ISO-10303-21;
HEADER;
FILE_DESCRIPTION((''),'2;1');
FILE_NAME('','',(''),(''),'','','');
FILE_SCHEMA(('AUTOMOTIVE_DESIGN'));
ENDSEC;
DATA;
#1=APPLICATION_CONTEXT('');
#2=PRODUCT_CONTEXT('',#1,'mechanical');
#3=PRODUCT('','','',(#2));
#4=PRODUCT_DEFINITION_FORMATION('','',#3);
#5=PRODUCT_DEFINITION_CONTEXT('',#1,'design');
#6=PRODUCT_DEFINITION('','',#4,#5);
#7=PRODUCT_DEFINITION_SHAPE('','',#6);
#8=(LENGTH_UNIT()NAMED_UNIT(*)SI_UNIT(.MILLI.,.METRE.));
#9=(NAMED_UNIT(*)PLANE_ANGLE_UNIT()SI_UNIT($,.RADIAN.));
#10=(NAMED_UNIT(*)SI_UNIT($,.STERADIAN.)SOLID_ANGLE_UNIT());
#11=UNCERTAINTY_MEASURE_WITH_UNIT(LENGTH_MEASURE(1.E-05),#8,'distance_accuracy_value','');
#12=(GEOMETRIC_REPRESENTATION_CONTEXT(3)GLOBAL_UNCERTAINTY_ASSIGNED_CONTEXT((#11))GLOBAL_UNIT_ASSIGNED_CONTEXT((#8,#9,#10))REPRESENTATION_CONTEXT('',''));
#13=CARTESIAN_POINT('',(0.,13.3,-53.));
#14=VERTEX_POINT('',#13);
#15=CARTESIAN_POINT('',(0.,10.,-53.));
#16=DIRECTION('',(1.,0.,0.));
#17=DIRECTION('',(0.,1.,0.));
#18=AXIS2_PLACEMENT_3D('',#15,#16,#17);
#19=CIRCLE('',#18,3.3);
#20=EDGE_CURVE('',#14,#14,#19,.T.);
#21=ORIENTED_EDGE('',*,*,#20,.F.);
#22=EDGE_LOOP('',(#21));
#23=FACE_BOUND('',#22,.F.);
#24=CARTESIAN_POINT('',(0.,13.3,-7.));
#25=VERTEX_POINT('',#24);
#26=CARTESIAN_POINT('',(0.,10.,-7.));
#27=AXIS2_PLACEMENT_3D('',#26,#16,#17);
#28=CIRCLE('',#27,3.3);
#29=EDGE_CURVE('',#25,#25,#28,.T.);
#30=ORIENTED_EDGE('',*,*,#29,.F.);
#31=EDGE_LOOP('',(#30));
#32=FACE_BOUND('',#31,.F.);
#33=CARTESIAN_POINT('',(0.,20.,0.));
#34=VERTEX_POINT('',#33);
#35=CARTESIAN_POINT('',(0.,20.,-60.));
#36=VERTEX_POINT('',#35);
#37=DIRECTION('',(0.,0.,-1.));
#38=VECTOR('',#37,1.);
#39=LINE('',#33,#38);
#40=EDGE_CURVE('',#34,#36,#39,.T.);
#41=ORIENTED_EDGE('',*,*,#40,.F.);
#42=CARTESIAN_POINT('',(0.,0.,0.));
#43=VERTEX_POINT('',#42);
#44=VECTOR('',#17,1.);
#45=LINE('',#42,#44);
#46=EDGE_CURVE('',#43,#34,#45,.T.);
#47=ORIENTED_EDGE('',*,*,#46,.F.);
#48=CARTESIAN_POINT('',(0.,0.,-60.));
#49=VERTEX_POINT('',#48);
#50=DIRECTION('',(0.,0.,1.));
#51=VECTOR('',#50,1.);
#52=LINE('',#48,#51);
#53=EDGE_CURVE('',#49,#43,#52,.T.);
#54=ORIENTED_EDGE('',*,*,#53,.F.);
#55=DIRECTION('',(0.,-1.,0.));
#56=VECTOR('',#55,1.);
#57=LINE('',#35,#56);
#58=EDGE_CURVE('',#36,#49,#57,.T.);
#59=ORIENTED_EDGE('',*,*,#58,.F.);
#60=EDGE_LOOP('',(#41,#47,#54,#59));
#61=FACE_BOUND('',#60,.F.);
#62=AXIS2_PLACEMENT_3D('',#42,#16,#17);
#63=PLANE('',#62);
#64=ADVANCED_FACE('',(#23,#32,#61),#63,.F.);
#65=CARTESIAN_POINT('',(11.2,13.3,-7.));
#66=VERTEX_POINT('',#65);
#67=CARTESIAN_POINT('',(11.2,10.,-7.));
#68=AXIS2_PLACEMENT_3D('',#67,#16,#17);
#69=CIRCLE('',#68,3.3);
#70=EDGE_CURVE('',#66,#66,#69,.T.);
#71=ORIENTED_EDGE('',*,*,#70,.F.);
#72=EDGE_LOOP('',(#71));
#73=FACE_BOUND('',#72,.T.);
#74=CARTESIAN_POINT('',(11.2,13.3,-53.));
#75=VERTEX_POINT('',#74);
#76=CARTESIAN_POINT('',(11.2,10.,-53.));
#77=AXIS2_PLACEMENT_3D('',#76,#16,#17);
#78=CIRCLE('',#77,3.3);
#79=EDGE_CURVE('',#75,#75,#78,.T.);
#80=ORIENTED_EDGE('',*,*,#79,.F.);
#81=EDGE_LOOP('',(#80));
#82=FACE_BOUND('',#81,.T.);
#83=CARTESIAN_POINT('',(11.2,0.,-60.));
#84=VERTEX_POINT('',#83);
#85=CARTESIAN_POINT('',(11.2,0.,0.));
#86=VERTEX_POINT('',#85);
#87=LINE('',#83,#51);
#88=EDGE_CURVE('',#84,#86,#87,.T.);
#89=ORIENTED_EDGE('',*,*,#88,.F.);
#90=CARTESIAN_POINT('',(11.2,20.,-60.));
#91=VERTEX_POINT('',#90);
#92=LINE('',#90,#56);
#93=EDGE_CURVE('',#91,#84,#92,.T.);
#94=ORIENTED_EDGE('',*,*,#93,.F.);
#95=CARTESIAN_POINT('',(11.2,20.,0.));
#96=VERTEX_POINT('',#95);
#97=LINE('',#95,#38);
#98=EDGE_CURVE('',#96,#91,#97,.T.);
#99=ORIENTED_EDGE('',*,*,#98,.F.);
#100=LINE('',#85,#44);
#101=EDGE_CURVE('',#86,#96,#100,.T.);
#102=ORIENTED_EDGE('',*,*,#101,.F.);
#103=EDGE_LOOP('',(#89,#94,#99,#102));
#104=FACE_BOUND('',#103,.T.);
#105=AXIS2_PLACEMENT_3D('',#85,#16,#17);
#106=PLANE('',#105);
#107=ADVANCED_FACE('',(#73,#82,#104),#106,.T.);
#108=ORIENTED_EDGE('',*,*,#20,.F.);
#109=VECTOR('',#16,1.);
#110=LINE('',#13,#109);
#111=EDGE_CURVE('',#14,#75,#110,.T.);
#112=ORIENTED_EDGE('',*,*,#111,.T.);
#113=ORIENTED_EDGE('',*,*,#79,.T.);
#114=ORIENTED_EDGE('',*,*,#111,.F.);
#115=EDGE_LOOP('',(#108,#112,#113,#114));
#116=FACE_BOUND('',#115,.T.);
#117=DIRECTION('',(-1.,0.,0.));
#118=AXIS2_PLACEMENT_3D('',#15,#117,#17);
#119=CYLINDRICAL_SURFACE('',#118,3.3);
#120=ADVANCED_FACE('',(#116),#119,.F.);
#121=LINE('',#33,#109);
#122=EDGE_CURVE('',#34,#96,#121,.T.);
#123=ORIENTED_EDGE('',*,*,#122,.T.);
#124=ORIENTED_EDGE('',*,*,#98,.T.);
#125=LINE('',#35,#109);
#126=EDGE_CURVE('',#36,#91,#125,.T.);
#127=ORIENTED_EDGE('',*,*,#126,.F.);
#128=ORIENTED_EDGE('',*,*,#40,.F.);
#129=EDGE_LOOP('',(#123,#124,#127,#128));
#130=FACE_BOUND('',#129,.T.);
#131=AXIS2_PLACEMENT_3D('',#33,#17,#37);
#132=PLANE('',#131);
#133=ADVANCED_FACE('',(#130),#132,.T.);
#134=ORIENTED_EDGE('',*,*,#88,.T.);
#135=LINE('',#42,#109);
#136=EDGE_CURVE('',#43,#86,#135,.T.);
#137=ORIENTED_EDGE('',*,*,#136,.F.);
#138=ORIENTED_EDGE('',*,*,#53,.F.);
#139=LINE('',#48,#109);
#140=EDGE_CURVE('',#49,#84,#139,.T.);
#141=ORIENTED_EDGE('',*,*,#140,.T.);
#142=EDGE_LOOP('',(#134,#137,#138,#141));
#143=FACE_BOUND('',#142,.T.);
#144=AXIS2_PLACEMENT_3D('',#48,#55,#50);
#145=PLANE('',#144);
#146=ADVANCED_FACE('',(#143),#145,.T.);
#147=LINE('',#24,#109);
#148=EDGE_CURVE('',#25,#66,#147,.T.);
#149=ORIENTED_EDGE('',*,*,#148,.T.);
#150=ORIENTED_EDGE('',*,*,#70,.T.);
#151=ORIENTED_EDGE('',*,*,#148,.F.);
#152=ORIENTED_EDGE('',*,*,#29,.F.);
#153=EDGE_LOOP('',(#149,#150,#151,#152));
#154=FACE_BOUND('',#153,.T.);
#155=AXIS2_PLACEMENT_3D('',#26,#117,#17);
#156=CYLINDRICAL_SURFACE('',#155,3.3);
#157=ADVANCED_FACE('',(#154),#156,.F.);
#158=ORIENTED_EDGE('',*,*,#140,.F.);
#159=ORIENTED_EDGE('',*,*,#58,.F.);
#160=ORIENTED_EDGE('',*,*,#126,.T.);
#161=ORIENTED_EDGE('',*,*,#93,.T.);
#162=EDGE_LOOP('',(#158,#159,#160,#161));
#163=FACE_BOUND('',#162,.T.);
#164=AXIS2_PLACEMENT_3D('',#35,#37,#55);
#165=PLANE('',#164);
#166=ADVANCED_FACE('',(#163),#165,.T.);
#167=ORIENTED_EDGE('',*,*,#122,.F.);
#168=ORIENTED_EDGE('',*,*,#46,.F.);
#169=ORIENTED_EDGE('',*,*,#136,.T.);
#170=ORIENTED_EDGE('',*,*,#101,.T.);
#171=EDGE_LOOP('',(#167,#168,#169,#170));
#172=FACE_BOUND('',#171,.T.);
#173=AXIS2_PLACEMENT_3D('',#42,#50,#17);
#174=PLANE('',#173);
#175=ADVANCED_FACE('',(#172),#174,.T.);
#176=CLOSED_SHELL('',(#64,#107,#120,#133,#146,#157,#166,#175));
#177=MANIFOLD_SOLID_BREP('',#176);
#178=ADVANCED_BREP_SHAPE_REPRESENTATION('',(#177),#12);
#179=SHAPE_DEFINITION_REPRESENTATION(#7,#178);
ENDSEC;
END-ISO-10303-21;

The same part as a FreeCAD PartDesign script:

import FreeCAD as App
import Part
import Sketcher
from FreeCAD import Vector


def add_polygon(sketch, points):
    """Adds a closed chain of lines whose ends are joined by coincident constraints."""
    first, n = sketch.GeometryCount, len(points)
    for a, b in zip(points, points[1:] + points[:1]):
        sketch.addGeometry(Part.LineSegment(App.Vector(*a, 0), App.Vector(*b, 0)), False)
    for i in range(n):
        sketch.addConstraint(Sketcher.Constraint("Coincident", first + i, 2, first + (i + 1) % n, 1))

doc = App.newDocument("Part")
body = doc.addObject("PartDesign::Body", "Body")

sketch1 = doc.addObject("Sketcher::SketchObject", "Sketch")
body.addObject(sketch1)
sketch1.AttachmentSupport = (doc.YZ_Plane, [""])
sketch1.MapMode = "FlatFace"
add_polygon(sketch1, [(20, 0), (0, 0), (0, -60), (20, -60)])
sketch1.addGeometry(Part.Circle(Vector(10, -53, 0), Vector(0, 0, 1), 3.3), False)
sketch1.addGeometry(Part.Circle(Vector(10, -7, 0), Vector(0, 0, 1), 3.3), False)
sketch1.addConstraint(Sketcher.Constraint("Horizontal", 0))
sketch1.addConstraint(Sketcher.Constraint("Vertical", 1))
sketch1.addConstraint(Sketcher.Constraint("Horizontal", 2))
sketch1.addConstraint(Sketcher.Constraint("Vertical", 3))
sketch1.addConstraint(Sketcher.Constraint("Coincident", 0, 2, -1, 1))
sketch1.addConstraint(Sketcher.Constraint("Equal", 4, 5))
sketch1.addConstraint(Sketcher.Constraint("Vertical", 4, 3, 5, 3))
sketch1.addConstraint(Sketcher.Constraint("Diameter", 4, 6.6))
sketch1.addConstraint(Sketcher.Constraint("DistanceX", 0, 2, 0, 1, 20.0))
sketch1.addConstraint(Sketcher.Constraint("DistanceY", 1, 2, 1, 1, 60.0))
sketch1.addConstraint(Sketcher.Constraint("DistanceX", -1, 1, 4, 3, 10.0))
sketch1.addConstraint(Sketcher.Constraint("DistanceY", 5, 3, -1, 1, 7.0))
sketch1.addConstraint(Sketcher.Constraint("DistanceY", 4, 3, 5, 3, 46.0))
pad1 = doc.addObject("PartDesign::Pad", "Pad")
body.addObject(pad1)
pad1.Profile = sketch1
pad1.Length = 11.2

doc.recompute()
